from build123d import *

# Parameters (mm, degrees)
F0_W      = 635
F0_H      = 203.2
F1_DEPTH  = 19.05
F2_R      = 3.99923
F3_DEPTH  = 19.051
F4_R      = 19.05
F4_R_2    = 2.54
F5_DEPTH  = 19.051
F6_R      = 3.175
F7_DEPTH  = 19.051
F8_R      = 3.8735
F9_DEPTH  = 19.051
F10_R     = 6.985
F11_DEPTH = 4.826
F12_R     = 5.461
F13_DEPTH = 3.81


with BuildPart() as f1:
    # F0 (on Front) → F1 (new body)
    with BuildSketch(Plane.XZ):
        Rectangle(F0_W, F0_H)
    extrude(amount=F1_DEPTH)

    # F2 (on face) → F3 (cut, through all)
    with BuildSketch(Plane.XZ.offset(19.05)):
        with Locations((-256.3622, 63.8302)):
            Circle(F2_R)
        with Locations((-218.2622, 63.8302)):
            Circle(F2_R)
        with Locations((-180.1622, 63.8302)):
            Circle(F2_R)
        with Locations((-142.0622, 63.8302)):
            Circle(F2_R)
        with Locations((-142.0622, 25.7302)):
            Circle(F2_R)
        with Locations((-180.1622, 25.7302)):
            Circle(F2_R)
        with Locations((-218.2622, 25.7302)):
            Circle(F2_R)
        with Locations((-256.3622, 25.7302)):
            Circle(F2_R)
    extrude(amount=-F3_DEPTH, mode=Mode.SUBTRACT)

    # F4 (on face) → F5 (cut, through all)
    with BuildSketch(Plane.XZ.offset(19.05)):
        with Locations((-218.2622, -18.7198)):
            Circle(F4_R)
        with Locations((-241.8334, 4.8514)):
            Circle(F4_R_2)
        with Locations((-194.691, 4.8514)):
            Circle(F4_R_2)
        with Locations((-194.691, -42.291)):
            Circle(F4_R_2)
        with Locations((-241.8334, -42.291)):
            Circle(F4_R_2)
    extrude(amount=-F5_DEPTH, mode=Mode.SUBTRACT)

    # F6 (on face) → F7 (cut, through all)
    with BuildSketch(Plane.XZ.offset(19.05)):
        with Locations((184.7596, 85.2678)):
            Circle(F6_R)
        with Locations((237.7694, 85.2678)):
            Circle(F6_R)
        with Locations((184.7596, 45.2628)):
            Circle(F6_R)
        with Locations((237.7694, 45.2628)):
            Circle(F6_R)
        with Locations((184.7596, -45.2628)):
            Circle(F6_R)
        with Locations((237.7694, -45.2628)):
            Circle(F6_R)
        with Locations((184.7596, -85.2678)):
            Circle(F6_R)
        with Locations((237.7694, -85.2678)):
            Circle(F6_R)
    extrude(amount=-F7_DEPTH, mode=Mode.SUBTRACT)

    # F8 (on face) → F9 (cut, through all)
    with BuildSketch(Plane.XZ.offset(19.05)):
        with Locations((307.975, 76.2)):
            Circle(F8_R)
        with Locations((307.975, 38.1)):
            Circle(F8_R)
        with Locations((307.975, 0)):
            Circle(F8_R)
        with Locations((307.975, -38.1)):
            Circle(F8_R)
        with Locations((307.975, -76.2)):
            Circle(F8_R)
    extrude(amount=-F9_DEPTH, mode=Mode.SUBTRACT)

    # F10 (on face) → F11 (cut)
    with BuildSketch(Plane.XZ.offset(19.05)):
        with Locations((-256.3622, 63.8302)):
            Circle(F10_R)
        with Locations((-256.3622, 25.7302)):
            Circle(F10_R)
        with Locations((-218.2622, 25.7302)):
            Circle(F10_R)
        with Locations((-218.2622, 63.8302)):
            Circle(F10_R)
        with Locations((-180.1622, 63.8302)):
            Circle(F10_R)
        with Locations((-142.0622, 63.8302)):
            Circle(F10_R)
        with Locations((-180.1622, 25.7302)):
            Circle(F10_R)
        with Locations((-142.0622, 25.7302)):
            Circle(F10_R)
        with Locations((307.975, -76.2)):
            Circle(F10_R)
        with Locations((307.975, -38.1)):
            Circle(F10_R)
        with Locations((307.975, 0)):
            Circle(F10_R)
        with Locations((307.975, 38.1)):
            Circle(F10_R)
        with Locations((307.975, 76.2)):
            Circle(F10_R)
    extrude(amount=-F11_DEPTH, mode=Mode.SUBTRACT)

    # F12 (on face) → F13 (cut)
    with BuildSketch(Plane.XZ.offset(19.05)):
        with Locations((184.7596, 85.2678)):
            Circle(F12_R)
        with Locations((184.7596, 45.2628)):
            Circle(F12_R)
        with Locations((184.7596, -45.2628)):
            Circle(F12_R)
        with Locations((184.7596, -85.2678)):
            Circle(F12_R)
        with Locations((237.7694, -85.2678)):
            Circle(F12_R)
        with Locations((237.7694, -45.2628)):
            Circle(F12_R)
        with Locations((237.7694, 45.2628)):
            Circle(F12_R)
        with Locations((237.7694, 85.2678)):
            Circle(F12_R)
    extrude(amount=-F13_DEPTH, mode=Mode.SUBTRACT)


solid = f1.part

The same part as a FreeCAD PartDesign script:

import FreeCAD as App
import Part
import Sketcher
from FreeCAD import Vector
Q = App.Units.Quantity

doc = App.newDocument("Part")
body = doc.addObject("PartDesign::Body", "Body")

sketch1 = body.newObject("Sketcher::SketchObject", "Sketch")
sketch1.AttachmentSupport = (doc.getObject("XZ_Plane"), [""])
sketch1.MapMode = "FlatFace"
sketch1.addGeometry([
    Part.LineSegment(Vector(-317.5, 101.6, 0), Vector(-317.5, -101.6, 0)),
    Part.LineSegment(Vector(-317.5, -101.6, 0), Vector(317.5, -101.6, 0)),
    Part.LineSegment(Vector(317.5, -101.6, 0), Vector(317.5, 101.6, 0)),
    Part.LineSegment(Vector(317.5, 101.6, 0), Vector(-317.5, 101.6, 0)),
], False)
sketch1.addConstraint([
    Sketcher.Constraint("Coincident", 0, 2, 1, 1),
    Sketcher.Constraint("Coincident", 1, 2, 2, 1),
    Sketcher.Constraint("Coincident", 2, 2, 3, 1),
    Sketcher.Constraint("Coincident", 3, 2, 0, 1),
    Sketcher.Constraint("Vertical", 0),
    Sketcher.Constraint("Horizontal", 1),
    Sketcher.Constraint("Vertical", 2),
    Sketcher.Constraint("Horizontal", 3),
    Sketcher.Constraint("Symmetric", 0, 2, 2, 2, -1, 1),
    Sketcher.Constraint("DistanceX", 1, 1, 1, 2, Q("25 in")),
    Sketcher.Constraint("DistanceY", 0, 2, 0, 1, Q("8 in")),
])
pad1 = body.newObject("PartDesign::Pad", "Pad")
pad1.Profile = sketch1
pad1.Length = Q("0.75 in")

sketch2 = body.newObject("Sketcher::SketchObject", "Sketch001")
sketch2.AttachmentSupport = (doc.getObject("XZ_Plane"), [""])
sketch2.MapMode = "FlatFace"
sketch2.AttachmentOffset = App.Placement(Vector(0, 0, 0.75 * 25.4), App.Rotation())
sketch2.addGeometry([
    Part.Circle(Vector(-256.3622, 63.8302, 0), Vector(0, 0, 1), 3.99923),
    Part.Circle(Vector(-218.2622, 63.8302, 0), Vector(0, 0, 1), 3.99923),
    Part.Circle(Vector(-180.1622, 63.8302, 0), Vector(0, 0, 1), 3.99923),
    Part.Circle(Vector(-142.0622, 63.8302, 0), Vector(0, 0, 1), 3.99923),
    Part.Circle(Vector(-142.0622, 25.7302, 0), Vector(0, 0, 1), 3.99923),
    Part.Circle(Vector(-180.1622, 25.7302, 0), Vector(0, 0, 1), 3.99923),
    Part.Circle(Vector(-218.2622, 25.7302, 0), Vector(0, 0, 1), 3.99923),
    Part.Circle(Vector(-256.3622, 25.7302, 0), Vector(0, 0, 1), 3.99923),
], False)
sketch2.addConstraint([
    Sketcher.Constraint("Equal", 0, 1),
    Sketcher.Constraint("Equal", 1, 2),
    Sketcher.Constraint("Equal", 2, 3),
    Sketcher.Constraint("Equal", 3, 4),
    Sketcher.Constraint("Equal", 4, 5),
    Sketcher.Constraint("Equal", 5, 6),
    Sketcher.Constraint("Equal", 6, 7),
    Sketcher.Constraint("Horizontal", 0, 3, 1, 3),
    Sketcher.Constraint("Horizontal", 1, 3, 2, 3),
    Sketcher.Constraint("Horizontal", 2, 3, 3, 3),
    Sketcher.Constraint("Horizontal", 4, 3, 5, 3),
    Sketcher.Constraint("Horizontal", 5, 3, 6, 3),
    Sketcher.Constraint("Horizontal", 6, 3, 7, 3),
    Sketcher.Constraint("Vertical", 3, 3, 4, 3),
    Sketcher.Constraint("Vertical", 2, 3, 5, 3),
    Sketcher.Constraint("Vertical", 1, 3, 6, 3),
    Sketcher.Constraint("Vertical", 0, 3, 7, 3),
    Sketcher.Constraint("DistanceX", 0, 3, 2, 3, Q("3 in")),
    Sketcher.Constraint("DistanceX", 1, 3, 3, 3, Q("3 in")),
    Sketcher.Constraint("Diameter", 0, Q("0.3149 in")),
    Sketcher.Constraint("DistanceX", 0, 3, 1, 3, Q("1.5 in")),
    Sketcher.Constraint("DistanceY", 4, 3, 3, 3, Q("1.5 in")),
    Sketcher.Constraint("DistanceX", 0, 3, -1, 1, Q("10.093 in")),
    Sketcher.Constraint("DistanceY", -1, 1, 0, 3, Q("2.513 in")),
])
pocket1 = body.newObject("PartDesign::Pocket", "Pocket")
pocket1.Profile = sketch2
pocket1.Type = "ThroughAll"

sketch3 = body.newObject("Sketcher::SketchObject", "Sketch002")
sketch3.AttachmentSupport = (doc.getObject("XZ_Plane"), [""])
sketch3.MapMode = "FlatFace"
sketch3.AttachmentOffset = App.Placement(Vector(0, 0, 0.75 * 25.4), App.Rotation())
sketch3.addGeometry([
    Part.Circle(Vector(-218.2622, -18.7198, 0), Vector(0, 0, 1), 19.05),
    Part.Circle(Vector(-241.8334, 4.8514, 0), Vector(0, 0, 1), 2.54),
    Part.Circle(Vector(-194.691, 4.8514, 0), Vector(0, 0, 1), 2.54),
    Part.Circle(Vector(-194.691, -42.291, 0), Vector(0, 0, 1), 2.54),
    Part.Circle(Vector(-241.8334, -42.291, 0), Vector(0, 0, 1), 2.54),
], False)
sketch3.addConstraint([
    Sketcher.Constraint("Equal", 1, 2),
    Sketcher.Constraint("Equal", 2, 3),
    Sketcher.Constraint("Equal", 3, 4),
    Sketcher.Constraint("Horizontal", 1, 3, 2, 3),
    Sketcher.Constraint("Horizontal", 3, 3, 4, 3),
    Sketcher.Constraint("Vertical", 2, 3, 3, 3),
    Sketcher.Constraint("Vertical", 1, 3, 4, 3),
    Sketcher.Constraint("Diameter", 0, Q("1.5 in")),
    Sketcher.Constraint("Diameter", 1, Q("0.2 in")),
    Sketcher.Constraint("DistanceX", 0, 3, -1, 1, Q("8.593 in")),
    Sketcher.Constraint("DistanceY", 0, 3, -1, 1, Q("0.737 in")),
    Sketcher.Constraint("DistanceX", 1, 3, -1, 1, Q("9.521 in")),
    Sketcher.Constraint("DistanceY", -1, 1, 1, 3, Q("0.191 in")),
    Sketcher.Constraint("DistanceX", 2, 3, -1, 1, Q("7.665 in")),
    Sketcher.Constraint("DistanceY", 3, 3, -1, 1, Q("1.665 in")),
])
pocket2 = body.newObject("PartDesign::Pocket", "Pocket001")
pocket2.Profile = sketch3
pocket2.Type = "ThroughAll"

sketch4 = body.newObject("Sketcher::SketchObject", "Sketch003")
sketch4.AttachmentSupport = (doc.getObject("XZ_Plane"), [""])
sketch4.MapMode = "FlatFace"
sketch4.AttachmentOffset = App.Placement(Vector(0, 0, 0.75 * 25.4), App.Rotation())
sketch4.addGeometry([
    Part.Circle(Vector(184.7596, 85.2678, 0), Vector(0, 0, 1), 3.175),
    Part.Circle(Vector(237.7694, 85.2678, 0), Vector(0, 0, 1), 3.175),
    Part.Circle(Vector(184.7596, 45.2628, 0), Vector(0, 0, 1), 3.175),
    Part.Circle(Vector(237.7694, 45.2628, 0), Vector(0, 0, 1), 3.175),
    Part.Circle(Vector(184.7596, -45.2628, 0), Vector(0, 0, 1), 3.175),
    Part.Circle(Vector(237.7694, -45.2628, 0), Vector(0, 0, 1), 3.175),
    Part.Circle(Vector(184.7596, -85.2678, 0), Vector(0, 0, 1), 3.175),
    Part.Circle(Vector(237.7694, -85.2678, 0), Vector(0, 0, 1), 3.175),
], False)
sketch4.addConstraint([
    Sketcher.Constraint("Equal", 0, 1),
    Sketcher.Constraint("Equal", 1, 2),
    Sketcher.Constraint("Equal", 2, 3),
    Sketcher.Constraint("Equal", 3, 4),
    Sketcher.Constraint("Equal", 4, 5),
    Sketcher.Constraint("Equal", 5, 6),
    Sketcher.Constraint("Equal", 6, 7),
    Sketcher.Constraint("Symmetric", 2, 3, 4, 3, -1),
    Sketcher.Constraint("Symmetric", 3, 3, 5, 3, -1),
    Sketcher.Constraint("Symmetric", 0, 3, 6, 3, -1),
    Sketcher.Constraint("Symmetric", 1, 3, 7, 3, -1),
    Sketcher.Constraint("Horizontal", 0, 3, 1, 3),
    Sketcher.Constraint("Horizontal", 2, 3, 3, 3),
    Sketcher.Constraint("Vertical", 0, 3, 2, 3),
    Sketcher.Constraint("Vertical", 1, 3, 3, 3),
    Sketcher.Constraint("Diameter", 0, Q("0.25 in")),
    Sketcher.Constraint("DistanceX", -1, 1, 0, 3, Q("7.274 in")),
    Sketcher.Constraint("DistanceY", -1, 1, 0, 3, Q("3.357 in")),
    Sketcher.Constraint("DistanceX", -1, 1, 1, 3, Q("9.361 in")),
    Sketcher.Constraint("DistanceY", -1, 1, 2, 3, Q("1.782 in")),
])
pocket3 = body.newObject("PartDesign::Pocket", "Pocket002")
pocket3.Profile = sketch4
pocket3.Type = "ThroughAll"

sketch5 = body.newObject("Sketcher::SketchObject", "Sketch004")
sketch5.AttachmentSupport = (doc.getObject("XZ_Plane"), [""])
sketch5.MapMode = "FlatFace"
sketch5.AttachmentOffset = App.Placement(Vector(0, 0, 0.75 * 25.4), App.Rotation())
sketch5.addGeometry([
    Part.Circle(Vector(307.975, 76.2, 0), Vector(0, 0, 1), 3.8735),
    Part.Circle(Vector(307.975, 38.1, 0), Vector(0, 0, 1), 3.8735),
    Part.Circle(Vector(307.975, 0, 0), Vector(0, 0, 1), 3.8735),
    Part.Circle(Vector(307.975, -38.1, 0), Vector(0, 0, 1), 3.8735),
    Part.Circle(Vector(307.975, -76.2, 0), Vector(0, 0, 1), 3.8735),
], False)
sketch5.addConstraint([
    Sketcher.Constraint("Equal", 0, 1),
    Sketcher.Constraint("Equal", 1, 2),
    Sketcher.Constraint("Equal", 2, 3),
    Sketcher.Constraint("Equal", 3, 4),
    Sketcher.Constraint("Symmetric", 1, 3, 3, 3, -1),
    Sketcher.Constraint("Symmetric", 0, 3, 4, 3, -1),
    Sketcher.Constraint("PointOnObject", 2, 3, -1),
    Sketcher.Constraint("Vertical", 0, 3, 1, 3),
    Sketcher.Constraint("Vertical", 1, 3, 2, 3),
    Sketcher.Constraint("Diameter", 0, Q("0.305 in")),
    Sketcher.Constraint("DistanceY", -1, 1, 0, 3, Q("3 in")),
    Sketcher.Constraint("DistanceY", 3, 3, 1, 3, Q("3 in")),
    Sketcher.Constraint("DistanceX", -1, 1, 0, 3, Q("12.125 in")),
])
pocket4 = body.newObject("PartDesign::Pocket", "Pocket003")
pocket4.Profile = sketch5
pocket4.Type = "ThroughAll"

sketch6 = body.newObject("Sketcher::SketchObject", "Sketch005")
sketch6.AttachmentSupport = (doc.getObject("XZ_Plane"), [""])
sketch6.MapMode = "FlatFace"
sketch6.AttachmentOffset = App.Placement(Vector(0, 0, 0.75 * 25.4), App.Rotation())
sketch6.addGeometry([
    Part.Circle(Vector(-256.3622, 63.8302, 0), Vector(0, 0, 1), 6.985),
    Part.Circle(Vector(-256.3622, 25.7302, 0), Vector(0, 0, 1), 6.985),
    Part.Circle(Vector(-218.2622, 25.7302, 0), Vector(0, 0, 1), 6.985),
    Part.Circle(Vector(-218.2622, 63.8302, 0), Vector(0, 0, 1), 6.985),
    Part.Circle(Vector(-180.1622, 63.8302, 0), Vector(0, 0, 1), 6.985),
    Part.Circle(Vector(-142.0622, 63.8302, 0), Vector(0, 0, 1), 6.985),
    Part.Circle(Vector(-180.1622, 25.7302, 0), Vector(0, 0, 1), 6.985),
    Part.Circle(Vector(-142.0622, 25.7302, 0), Vector(0, 0, 1), 6.985),
    Part.Circle(Vector(307.975, -76.2, 0), Vector(0, 0, 1), 6.985),
    Part.Circle(Vector(307.975, -38.1, 0), Vector(0, 0, 1), 6.985),
    Part.Circle(Vector(307.975, 0, 0), Vector(0, 0, 1), 6.985),
    Part.Circle(Vector(307.975, 38.1, 0), Vector(0, 0, 1), 6.985),
    Part.Circle(Vector(307.975, 76.2, 0), Vector(0, 0, 1), 6.985),
], False)
sketch6.addConstraint([
    Sketcher.Constraint("Equal", 0, 1),
    Sketcher.Constraint("Equal", 1, 2),
    Sketcher.Constraint("Equal", 2, 3),
    Sketcher.Constraint("Equal", 3, 4),
    Sketcher.Constraint("Equal", 4, 5),
    Sketcher.Constraint("Equal", 5, 6),
    Sketcher.Constraint("Equal", 6, 7),
    Sketcher.Constraint("Equal", 7, 8),
    Sketcher.Constraint("Equal", 8, 9),
    Sketcher.Constraint("Equal", 9, 10),
    Sketcher.Constraint("Equal", 10, 11),
    Sketcher.Constraint("Equal", 11, 12),
    Sketcher.Constraint("Symmetric", 9, 3, 11, 3, -1),
    Sketcher.Constraint("Symmetric", 8, 3, 12, 3, -1),
    Sketcher.Constraint("PointOnObject", 10, 3, -1),
    Sketcher.Constraint("Horizontal", 1, 3, 2, 3),
    Sketcher.Constraint("Horizontal", 0, 3, 3, 3),
    Sketcher.Constraint("Horizontal", 3, 3, 4, 3),
    Sketcher.Constraint("Horizontal", 4, 3, 5, 3),
    Sketcher.Constraint("Horizontal", 2, 3, 6, 3),
    Sketcher.Constraint("Horizontal", 6, 3, 7, 3),
    Sketcher.Constraint("Vertical", 0, 3, 1, 3),
    Sketcher.Constraint("Vertical", 2, 3, 3, 3),
    Sketcher.Constraint("Vertical", 4, 3, 6, 3),
    Sketcher.Constraint("Vertical", 5, 3, 7, 3),
    Sketcher.Constraint("Vertical", 8, 3, 9, 3),
    Sketcher.Constraint("Vertical", 9, 3, 10, 3),
    Sketcher.Constraint("Diameter", 0, Q("0.55 in")),
    Sketcher.Constraint("DistanceY", 8, 3, -1, 1, Q("3 in")),
    Sketcher.Constraint("DistanceX", 0, 3, 4, 3, Q("3 in")),
    Sketcher.Constraint("DistanceX", 3, 3, 5, 3, Q("3 in")),
    Sketcher.Constraint("DistanceY", 9, 3, 11, 3, Q("3 in")),
    Sketcher.Constraint("DistanceY", 1, 3, 0, 3, Q("1.5 in")),
    Sketcher.Constraint("DistanceX", 1, 3, 2, 3, Q("1.5 in")),
    Sketcher.Constraint("DistanceX", 0, 3, -1, 1, Q("10.093 in")),
    Sketcher.Constraint("DistanceY", -1, 1, 0, 3, Q("2.513 in")),
    Sketcher.Constraint("DistanceX", -1, 1, 8, 3, Q("12.125 in")),
])
pocket5 = body.newObject("PartDesign::Pocket", "Pocket004")
pocket5.Profile = sketch6
pocket5.Length = Q("0.19 in")

sketch7 = body.newObject("Sketcher::SketchObject", "Sketch006")
sketch7.AttachmentSupport = (doc.getObject("XZ_Plane"), [""])
sketch7.MapMode = "FlatFace"
sketch7.AttachmentOffset = App.Placement(Vector(0, 0, 0.75 * 25.4), App.Rotation())
sketch7.addGeometry([
    Part.Circle(Vector(184.7596, 85.2678, 0), Vector(0, 0, 1), 5.461),
    Part.Circle(Vector(184.7596, 45.2628, 0), Vector(0, 0, 1), 5.461),
    Part.Circle(Vector(184.7596, -45.2628, 0), Vector(0, 0, 1), 5.461),
    Part.Circle(Vector(184.7596, -85.2678, 0), Vector(0, 0, 1), 5.461),
    Part.Circle(Vector(237.7694, -85.2678, 0), Vector(0, 0, 1), 5.461),
    Part.Circle(Vector(237.7694, -45.2628, 0), Vector(0, 0, 1), 5.461),
    Part.Circle(Vector(237.7694, 45.2628, 0), Vector(0, 0, 1), 5.461),
    Part.Circle(Vector(237.7694, 85.2678, 0), Vector(0, 0, 1), 5.461),
], False)
sketch7.addConstraint([
    Sketcher.Constraint("Equal", 0, 1),
    Sketcher.Constraint("Equal", 1, 2),
    Sketcher.Constraint("Equal", 2, 3),
    Sketcher.Constraint("Equal", 3, 4),
    Sketcher.Constraint("Equal", 4, 5),
    Sketcher.Constraint("Equal", 5, 6),
    Sketcher.Constraint("Equal", 6, 7),
    Sketcher.Constraint("Symmetric", 1, 3, 2, 3, -1),
    Sketcher.Constraint("Symmetric", 0, 3, 3, 3, -1),
    Sketcher.Constraint("Symmetric", 5, 3, 6, 3, -1),
    Sketcher.Constraint("Symmetric", 4, 3, 7, 3, -1),
    Sketcher.Constraint("Horizontal", 3, 3, 4, 3),
    Sketcher.Constraint("Horizontal", 2, 3, 5, 3),
    Sketcher.Constraint("Vertical", 0, 3, 1, 3),
    Sketcher.Constraint("Vertical", 4, 3, 5, 3),
    Sketcher.Constraint("Diameter", 0, Q("0.43 in")),
    Sketcher.Constraint("DistanceX", -1, 1, 0, 3, Q("7.274 in")),
    Sketcher.Constraint("DistanceY", -1, 1, 0, 3, Q("3.357 in")),
    Sketcher.Constraint("DistanceY", -1, 1, 1, 3, Q("1.782 in")),
    Sketcher.Constraint("DistanceX", -1, 1, 4, 3, Q("9.361 in")),
])
pocket6 = body.newObject("PartDesign::Pocket", "Pocket005")
pocket6.Profile = sketch7
pocket6.Length = Q("0.15 in")

doc.recompute()
